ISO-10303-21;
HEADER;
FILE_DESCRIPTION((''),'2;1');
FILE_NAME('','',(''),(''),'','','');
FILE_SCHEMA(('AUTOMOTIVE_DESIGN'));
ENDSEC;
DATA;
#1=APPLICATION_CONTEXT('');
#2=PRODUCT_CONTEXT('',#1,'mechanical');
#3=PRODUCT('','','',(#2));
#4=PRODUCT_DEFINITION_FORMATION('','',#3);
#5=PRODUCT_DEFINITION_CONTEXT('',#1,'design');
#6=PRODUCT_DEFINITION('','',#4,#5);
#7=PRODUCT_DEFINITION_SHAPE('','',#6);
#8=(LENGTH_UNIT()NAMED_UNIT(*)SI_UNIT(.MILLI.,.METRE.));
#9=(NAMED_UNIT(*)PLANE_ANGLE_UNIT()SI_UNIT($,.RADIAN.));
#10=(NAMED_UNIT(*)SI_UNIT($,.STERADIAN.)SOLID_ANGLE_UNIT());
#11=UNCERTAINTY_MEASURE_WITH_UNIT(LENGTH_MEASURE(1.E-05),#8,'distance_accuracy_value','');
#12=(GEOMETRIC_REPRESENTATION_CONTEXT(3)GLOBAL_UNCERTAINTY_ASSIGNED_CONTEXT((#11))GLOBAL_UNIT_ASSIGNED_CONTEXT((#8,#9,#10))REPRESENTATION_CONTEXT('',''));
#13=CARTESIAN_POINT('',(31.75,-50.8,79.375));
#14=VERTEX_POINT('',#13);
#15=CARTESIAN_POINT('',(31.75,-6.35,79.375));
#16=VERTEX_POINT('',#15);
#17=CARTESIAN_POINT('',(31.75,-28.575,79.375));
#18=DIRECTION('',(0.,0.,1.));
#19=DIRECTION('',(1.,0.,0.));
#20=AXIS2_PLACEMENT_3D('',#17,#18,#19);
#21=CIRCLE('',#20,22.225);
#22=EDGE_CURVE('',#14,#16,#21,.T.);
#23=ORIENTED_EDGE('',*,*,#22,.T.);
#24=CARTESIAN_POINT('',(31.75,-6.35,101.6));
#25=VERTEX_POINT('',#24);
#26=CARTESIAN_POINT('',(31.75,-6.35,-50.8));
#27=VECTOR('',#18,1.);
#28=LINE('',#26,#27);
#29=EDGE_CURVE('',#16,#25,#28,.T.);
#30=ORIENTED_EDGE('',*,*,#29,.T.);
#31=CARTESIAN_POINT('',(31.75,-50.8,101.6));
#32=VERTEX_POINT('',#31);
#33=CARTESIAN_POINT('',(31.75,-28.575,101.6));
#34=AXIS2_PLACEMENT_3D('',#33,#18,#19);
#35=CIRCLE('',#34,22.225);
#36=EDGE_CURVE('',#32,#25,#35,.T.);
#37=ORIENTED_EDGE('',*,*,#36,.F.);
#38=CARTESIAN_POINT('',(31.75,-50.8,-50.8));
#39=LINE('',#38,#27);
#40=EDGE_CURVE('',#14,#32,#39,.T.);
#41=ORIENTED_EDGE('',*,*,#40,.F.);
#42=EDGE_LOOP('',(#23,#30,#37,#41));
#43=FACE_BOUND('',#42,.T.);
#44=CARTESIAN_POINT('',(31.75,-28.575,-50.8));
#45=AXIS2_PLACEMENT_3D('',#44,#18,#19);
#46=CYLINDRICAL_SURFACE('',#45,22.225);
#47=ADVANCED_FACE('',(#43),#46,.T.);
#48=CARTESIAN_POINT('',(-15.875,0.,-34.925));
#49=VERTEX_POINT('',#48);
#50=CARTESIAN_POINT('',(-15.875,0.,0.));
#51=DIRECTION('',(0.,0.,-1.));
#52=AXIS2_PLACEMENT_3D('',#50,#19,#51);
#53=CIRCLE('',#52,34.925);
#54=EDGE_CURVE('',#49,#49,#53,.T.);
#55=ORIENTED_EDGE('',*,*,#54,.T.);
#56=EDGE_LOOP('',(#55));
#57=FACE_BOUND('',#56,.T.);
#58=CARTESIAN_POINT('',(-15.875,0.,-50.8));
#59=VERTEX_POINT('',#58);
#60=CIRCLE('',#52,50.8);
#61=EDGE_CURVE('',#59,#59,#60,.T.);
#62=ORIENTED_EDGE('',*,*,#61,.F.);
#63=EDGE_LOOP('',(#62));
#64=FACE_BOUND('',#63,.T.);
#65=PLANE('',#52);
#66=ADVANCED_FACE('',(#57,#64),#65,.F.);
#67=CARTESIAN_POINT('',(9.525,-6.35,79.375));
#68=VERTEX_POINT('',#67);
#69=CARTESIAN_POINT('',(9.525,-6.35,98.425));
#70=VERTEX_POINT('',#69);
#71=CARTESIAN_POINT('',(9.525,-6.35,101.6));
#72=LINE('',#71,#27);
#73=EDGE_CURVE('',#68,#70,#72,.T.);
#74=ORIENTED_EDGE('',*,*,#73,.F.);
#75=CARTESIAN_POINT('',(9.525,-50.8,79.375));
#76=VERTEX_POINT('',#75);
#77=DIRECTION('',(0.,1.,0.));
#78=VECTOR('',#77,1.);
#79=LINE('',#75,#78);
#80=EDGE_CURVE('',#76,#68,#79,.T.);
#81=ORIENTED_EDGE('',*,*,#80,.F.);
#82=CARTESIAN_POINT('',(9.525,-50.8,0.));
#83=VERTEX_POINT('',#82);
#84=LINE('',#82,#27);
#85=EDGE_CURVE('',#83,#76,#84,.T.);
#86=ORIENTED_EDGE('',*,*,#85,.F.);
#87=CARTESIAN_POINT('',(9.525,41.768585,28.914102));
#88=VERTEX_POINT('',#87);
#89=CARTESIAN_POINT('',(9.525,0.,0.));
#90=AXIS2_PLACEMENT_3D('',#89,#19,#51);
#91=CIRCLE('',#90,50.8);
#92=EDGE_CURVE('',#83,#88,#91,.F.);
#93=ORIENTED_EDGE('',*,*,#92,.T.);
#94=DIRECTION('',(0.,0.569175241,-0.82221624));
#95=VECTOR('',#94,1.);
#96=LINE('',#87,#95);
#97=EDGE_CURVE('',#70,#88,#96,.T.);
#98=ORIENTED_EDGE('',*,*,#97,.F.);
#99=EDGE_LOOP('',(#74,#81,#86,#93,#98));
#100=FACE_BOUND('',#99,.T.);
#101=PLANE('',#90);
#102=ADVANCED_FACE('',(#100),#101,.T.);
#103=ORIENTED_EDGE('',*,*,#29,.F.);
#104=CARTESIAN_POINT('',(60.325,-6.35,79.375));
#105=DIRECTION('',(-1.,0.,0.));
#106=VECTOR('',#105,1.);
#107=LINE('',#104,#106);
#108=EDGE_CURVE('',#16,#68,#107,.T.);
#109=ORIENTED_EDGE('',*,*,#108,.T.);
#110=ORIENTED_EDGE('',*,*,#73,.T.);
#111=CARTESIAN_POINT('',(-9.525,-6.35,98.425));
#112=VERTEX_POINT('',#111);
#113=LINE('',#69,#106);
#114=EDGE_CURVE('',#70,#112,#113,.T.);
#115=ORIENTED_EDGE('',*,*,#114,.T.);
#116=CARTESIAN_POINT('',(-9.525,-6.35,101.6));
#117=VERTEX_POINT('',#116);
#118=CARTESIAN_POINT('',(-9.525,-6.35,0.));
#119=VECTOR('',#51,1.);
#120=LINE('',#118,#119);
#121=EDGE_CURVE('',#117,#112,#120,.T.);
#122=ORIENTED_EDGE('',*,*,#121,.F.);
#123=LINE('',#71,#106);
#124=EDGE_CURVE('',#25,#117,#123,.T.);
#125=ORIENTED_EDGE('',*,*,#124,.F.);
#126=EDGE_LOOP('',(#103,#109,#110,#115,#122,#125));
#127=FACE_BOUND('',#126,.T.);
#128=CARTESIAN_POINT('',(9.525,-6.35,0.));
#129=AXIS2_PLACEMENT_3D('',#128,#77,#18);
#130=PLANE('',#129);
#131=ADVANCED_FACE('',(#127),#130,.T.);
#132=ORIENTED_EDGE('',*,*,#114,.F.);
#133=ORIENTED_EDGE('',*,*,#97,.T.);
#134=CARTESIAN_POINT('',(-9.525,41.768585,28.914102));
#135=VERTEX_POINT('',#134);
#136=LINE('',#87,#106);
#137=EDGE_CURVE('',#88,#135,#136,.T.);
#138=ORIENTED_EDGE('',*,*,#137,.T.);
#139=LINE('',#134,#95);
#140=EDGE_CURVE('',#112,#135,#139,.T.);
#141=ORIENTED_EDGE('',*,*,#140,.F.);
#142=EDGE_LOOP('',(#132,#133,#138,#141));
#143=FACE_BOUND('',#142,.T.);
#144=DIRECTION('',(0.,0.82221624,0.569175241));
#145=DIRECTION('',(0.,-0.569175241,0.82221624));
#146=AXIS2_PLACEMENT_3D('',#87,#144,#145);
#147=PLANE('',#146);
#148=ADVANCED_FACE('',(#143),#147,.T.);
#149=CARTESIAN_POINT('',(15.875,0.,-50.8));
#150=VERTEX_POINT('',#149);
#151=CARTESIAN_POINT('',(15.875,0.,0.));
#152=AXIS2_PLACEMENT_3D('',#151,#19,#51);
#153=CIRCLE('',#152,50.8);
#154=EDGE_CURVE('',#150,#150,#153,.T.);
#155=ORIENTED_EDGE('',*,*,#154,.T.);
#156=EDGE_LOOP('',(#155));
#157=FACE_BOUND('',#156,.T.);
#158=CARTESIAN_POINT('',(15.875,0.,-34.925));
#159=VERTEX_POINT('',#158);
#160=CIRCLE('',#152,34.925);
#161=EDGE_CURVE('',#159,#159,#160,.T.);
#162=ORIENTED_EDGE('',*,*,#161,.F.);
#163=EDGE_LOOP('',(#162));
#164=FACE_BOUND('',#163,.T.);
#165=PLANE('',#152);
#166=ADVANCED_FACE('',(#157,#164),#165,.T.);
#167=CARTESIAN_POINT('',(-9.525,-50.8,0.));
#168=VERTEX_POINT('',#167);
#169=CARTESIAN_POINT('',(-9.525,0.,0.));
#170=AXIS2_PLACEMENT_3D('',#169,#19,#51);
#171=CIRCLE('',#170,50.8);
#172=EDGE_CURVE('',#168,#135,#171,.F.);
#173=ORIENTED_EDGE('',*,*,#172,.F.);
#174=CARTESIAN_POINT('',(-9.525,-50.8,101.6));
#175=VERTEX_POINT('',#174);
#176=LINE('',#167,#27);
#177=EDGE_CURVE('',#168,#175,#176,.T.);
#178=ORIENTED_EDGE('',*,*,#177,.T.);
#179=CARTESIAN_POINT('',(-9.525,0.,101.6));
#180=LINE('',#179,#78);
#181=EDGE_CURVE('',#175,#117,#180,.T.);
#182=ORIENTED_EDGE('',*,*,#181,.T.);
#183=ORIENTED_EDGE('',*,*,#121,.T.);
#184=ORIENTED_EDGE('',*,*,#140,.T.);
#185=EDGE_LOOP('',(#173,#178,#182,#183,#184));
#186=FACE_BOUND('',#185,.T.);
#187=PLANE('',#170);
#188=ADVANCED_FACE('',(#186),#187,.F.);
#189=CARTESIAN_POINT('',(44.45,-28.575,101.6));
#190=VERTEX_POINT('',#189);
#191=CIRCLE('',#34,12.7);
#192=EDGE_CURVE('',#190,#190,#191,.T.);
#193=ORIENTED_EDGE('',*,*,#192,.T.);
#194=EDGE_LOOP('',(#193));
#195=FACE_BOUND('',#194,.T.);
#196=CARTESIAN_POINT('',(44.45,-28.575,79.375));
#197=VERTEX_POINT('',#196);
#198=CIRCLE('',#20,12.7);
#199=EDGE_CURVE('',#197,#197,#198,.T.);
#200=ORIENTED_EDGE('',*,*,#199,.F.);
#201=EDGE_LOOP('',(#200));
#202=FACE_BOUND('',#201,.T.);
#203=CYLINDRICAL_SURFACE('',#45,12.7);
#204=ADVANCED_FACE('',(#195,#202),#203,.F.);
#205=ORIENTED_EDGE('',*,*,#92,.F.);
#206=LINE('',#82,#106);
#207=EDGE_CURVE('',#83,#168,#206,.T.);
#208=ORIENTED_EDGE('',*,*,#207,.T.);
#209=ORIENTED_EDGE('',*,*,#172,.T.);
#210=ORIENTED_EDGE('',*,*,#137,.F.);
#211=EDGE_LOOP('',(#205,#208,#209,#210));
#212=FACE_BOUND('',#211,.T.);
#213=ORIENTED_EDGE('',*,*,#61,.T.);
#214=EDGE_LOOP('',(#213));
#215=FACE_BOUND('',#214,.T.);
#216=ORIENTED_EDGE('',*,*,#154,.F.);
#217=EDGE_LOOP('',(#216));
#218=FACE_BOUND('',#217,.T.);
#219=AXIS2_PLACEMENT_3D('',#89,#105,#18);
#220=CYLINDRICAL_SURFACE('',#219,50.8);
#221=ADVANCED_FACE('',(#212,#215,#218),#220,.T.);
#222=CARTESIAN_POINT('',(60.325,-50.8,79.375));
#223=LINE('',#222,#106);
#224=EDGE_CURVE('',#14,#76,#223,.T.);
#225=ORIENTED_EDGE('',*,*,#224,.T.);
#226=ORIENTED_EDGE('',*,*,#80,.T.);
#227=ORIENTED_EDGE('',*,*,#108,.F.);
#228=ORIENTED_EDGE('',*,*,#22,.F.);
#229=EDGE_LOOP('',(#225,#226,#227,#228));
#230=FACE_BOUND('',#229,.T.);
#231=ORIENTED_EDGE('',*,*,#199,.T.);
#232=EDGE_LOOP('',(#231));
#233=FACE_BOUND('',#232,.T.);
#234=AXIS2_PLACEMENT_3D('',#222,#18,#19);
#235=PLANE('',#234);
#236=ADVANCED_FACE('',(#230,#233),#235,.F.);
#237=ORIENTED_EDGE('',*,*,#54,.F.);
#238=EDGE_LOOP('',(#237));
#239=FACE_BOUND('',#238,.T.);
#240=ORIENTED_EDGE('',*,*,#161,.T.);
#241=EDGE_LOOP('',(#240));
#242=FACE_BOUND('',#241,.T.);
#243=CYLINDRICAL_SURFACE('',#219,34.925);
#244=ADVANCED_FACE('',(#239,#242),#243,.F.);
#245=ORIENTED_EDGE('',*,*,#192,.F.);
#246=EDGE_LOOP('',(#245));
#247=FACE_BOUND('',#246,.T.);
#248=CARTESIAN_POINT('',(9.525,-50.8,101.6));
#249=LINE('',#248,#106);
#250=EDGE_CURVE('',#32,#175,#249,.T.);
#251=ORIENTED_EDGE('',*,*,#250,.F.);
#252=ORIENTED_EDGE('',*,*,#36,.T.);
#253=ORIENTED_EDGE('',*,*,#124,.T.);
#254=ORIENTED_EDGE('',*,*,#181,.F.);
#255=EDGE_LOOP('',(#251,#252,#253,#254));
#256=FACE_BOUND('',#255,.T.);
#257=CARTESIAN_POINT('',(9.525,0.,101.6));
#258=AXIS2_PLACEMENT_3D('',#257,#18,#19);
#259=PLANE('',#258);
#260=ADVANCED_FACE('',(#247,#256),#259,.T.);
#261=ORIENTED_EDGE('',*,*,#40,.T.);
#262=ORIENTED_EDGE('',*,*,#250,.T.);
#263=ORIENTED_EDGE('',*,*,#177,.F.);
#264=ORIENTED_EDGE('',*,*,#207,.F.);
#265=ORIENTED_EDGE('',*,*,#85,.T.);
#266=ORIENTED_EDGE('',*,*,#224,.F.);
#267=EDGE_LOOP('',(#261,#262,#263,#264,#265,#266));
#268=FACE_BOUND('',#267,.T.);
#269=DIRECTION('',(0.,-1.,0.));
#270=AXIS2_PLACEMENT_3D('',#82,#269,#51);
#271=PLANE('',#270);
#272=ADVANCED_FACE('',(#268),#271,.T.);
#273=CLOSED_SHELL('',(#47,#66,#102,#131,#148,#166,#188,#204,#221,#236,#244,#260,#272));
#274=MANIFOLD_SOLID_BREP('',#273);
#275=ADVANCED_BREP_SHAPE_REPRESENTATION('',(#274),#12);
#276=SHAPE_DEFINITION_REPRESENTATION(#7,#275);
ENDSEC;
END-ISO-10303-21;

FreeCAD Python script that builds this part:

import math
import FreeCAD as App
import Part
import Sketcher
Q = App.Units.Quantity

doc = App.newDocument("Part")
params = doc.addObject("Spreadsheet::Sheet", "Params")
for row, (alias, value) in enumerate([
    ("sketch1_radius", "2 in"),
    ("sketch1_diameter", "2.75 in"),
    ("sketch1_height", "4 in"),
    ("sketch1_width", "1.75 in"),
    ("sketch1_height2", "0.125 in"),
    ("pad1_length", "0.75 in"),
    ("sketch2_diameter", "4 in"),
    ("sketch2_diameter2", "2.75 in"),
    ("pad2_length", "1.25 in"),
    ("sketch3_width", "1.75 in"),
    ("sketch3_height", "0.875 in"),
    ("pad3_length", "2 in"),
    ("sketch4_diameter", "1 in"),
    ("sketch4_radius", "0.875 in"),
    ("sketch4_width", "1.125 in"),
], start=1):
    params.set(f"A{row}", alias)
    params.set(f"B{row}", "=" + value)
    params.setAlias(f"B{row}", alias)

body = doc.addObject("PartDesign::Body", "Body")

sketch1 = body.newObject("Sketcher::SketchObject", "Sketch")
sketch1.AttachmentSupport = (doc.getObject("YZ_Plane"), [""])
sketch1.MapMode = "FlatFace"
sketch1.addGeometry([
    Part.LineSegment(App.Vector(41.8, 28.9, 0), App.Vector(-6.3, 98.4, 0)),
    Part.LineSegment(App.Vector(-6.3, 98.4, 0), App.Vector(-6.3, 101.6, 0)),
    Part.LineSegment(App.Vector(-6.3, 101.6, 0), App.Vector(-50.8, 101.6, 0)),
    Part.LineSegment(App.Vector(-50.8, 101.6, 0), App.Vector(-50.8, 0, 0)),
    Part.ArcOfCircle(Part.Circle(App.Vector(0, 0, 0), App.Vector(0, 0, 1), 50.8), math.radians(180), math.radians(395)),
    Part.Circle(App.Vector(0, 0, 0), App.Vector(0, 0, 1), 34.9),
], False)
sketch1.addConstraint([
    Sketcher.Constraint("Coincident", 0, 2, 1, 1),
    Sketcher.Constraint("Coincident", 1, 2, 2, 1),
    Sketcher.Constraint("Coincident", 2, 2, 3, 1),
    Sketcher.Constraint("Tangent", 3, 2, 4, 1),
    Sketcher.Constraint("Tangent", 4, 2, 0, 1),
    Sketcher.Constraint("Vertical", 1),
    Sketcher.Constraint("Horizontal", 2),
    Sketcher.Constraint("Vertical", 3),
    Sketcher.Constraint("Coincident", 4, 3, -1, 1),
    Sketcher.Constraint("Coincident", 5, 3, -1, 1),
    Sketcher.Constraint("Radius", 4, Q("2 in")),
    Sketcher.Constraint("Diameter", 5, Q("2.75 in")),
    Sketcher.Constraint("DistanceY", 3, 2, 3, 1, Q("4 in")),
    Sketcher.Constraint("DistanceX", 2, 2, 2, 1, Q("1.75 in")),
    Sketcher.Constraint("DistanceY", 1, 1, 1, 2, Q("0.125 in")),
])
sketch1.setExpression("Constraints[10]", "Params.sketch1_radius")
sketch1.setExpression("Constraints[11]", "Params.sketch1_diameter")
sketch1.setExpression("Constraints[12]", "Params.sketch1_height")
sketch1.setExpression("Constraints[13]", "Params.sketch1_width")
sketch1.setExpression("Constraints[14]", "Params.sketch1_height2")
pad1 = body.newObject("PartDesign::Pad", "Pad")
pad1.Profile = sketch1
pad1.setExpression("Length", "Params.pad1_length")
pad1.Midplane = True

sketch2 = body.newObject("Sketcher::SketchObject", "Sketch001")
sketch2.AttachmentSupport = (doc.getObject("YZ_Plane"), [""])
sketch2.MapMode = "FlatFace"
sketch2.addGeometry([
    Part.Circle(App.Vector(0, 0, 0), App.Vector(0, 0, 1), 51),
    Part.Circle(App.Vector(0, 0, 0), App.Vector(0, 0, 1), 35),
], False)
sketch2.addConstraint([
    Sketcher.Constraint("Coincident", 0, 3, -1, 1),
    Sketcher.Constraint("Coincident", 1, 3, -1, 1),
    Sketcher.Constraint("Diameter", 0, Q("4 in")),
    Sketcher.Constraint("Diameter", 1, Q("2.75 in")),
])
sketch2.setExpression("Constraints[2]", "Params.sketch2_diameter")
sketch2.setExpression("Constraints[3]", "Params.sketch2_diameter2")
pad2 = body.newObject("PartDesign::Pad", "Pad001")
pad2.Profile = sketch2
pad2.setExpression("Length", "Params.pad2_length")
pad2.Midplane = True

sketch3 = body.newObject("Sketcher::SketchObject", "Sketch002")
sketch3.AttachmentSupport = (doc.getObject("YZ_Plane"), [""])
sketch3.MapMode = "FlatFace"
sketch3.AttachmentOffset = App.Placement(App.Vector(0, 0, 0.375 * 25.4), App.Rotation())
sketch3.addGeometry([
    Part.LineSegment(App.Vector(-6, 102, 0), App.Vector(-51, 102, 0)),
    Part.LineSegment(App.Vector(-51, 102, 0), App.Vector(-51, 79, 0)),
    Part.LineSegment(App.Vector(-51, 79, 0), App.Vector(-6, 79, 0)),
    Part.LineSegment(App.Vector(-6, 79, 0), App.Vector(-6, 102, 0)),
], False)
sketch3.addConstraint([
    Sketcher.Constraint("Coincident", 0, 2, 1, 1),
    Sketcher.Constraint("Coincident", 1, 2, 2, 1),
    Sketcher.Constraint("Coincident", 2, 2, 3, 1),
    Sketcher.Constraint("Coincident", 3, 2, 0, 1),
    Sketcher.Constraint("Horizontal", 0),
    Sketcher.Constraint("Vertical", 1),
    Sketcher.Constraint("Horizontal", 2),
    Sketcher.Constraint("Vertical", 3),
    Sketcher.Constraint("DistanceX", 0, 2, -1, 1, Q("2 in")),
    Sketcher.Constraint("DistanceY", -1, 1, 0, 2, Q("4 in")),
    Sketcher.Constraint("DistanceX", 0, 2, 0, 1, Q("1.75 in")),
    Sketcher.Constraint("DistanceY", 1, 2, 1, 1, Q("0.875 in")),
])
sketch3.setExpression("Constraints[10]", "Params.sketch3_width")
sketch3.setExpression("Constraints[11]", "Params.sketch3_height")
pad3 = body.newObject("PartDesign::Pad", "Pad002")
pad3.Profile = sketch3
pad3.setExpression("Length", "Params.pad3_length")

sketch4 = body.newObject("Sketcher::SketchObject", "Sketch003")
sketch4.AttachmentSupport = (doc.getObject("XY_Plane"), [""])
sketch4.MapMode = "FlatFace"
sketch4.AttachmentOffset = App.Placement(App.Vector(0, 0, 4 * 25.4), App.Rotation())
sketch4.addGeometry([
    Part.LineSegment(App.Vector(60, -6, 0), App.Vector(32, -6, 0)),
    Part.ArcOfCircle(Part.Circle(App.Vector(32, -29, 0), App.Vector(0, 0, 1), 22), math.radians(-90), math.radians(90)),
    Part.LineSegment(App.Vector(32, -51, 0), App.Vector(60, -51, 0)),
    Part.LineSegment(App.Vector(60, -51, 0), App.Vector(60, -6, 0)),
    Part.Circle(App.Vector(32, -29, 0), App.Vector(0, 0, 1), 13),
], False)
sketch4.addConstraint([
    Sketcher.Constraint("Tangent", 0, 2, 1, 2),
    Sketcher.Constraint("Tangent", 1, 1, 2, 1),
    Sketcher.Constraint("Coincident", 2, 2, 3, 1),
    Sketcher.Constraint("Coincident", 3, 2, 0, 1),
    Sketcher.Constraint("Horizontal", 0),
    Sketcher.Constraint("Horizontal", 2),
    Sketcher.Constraint("Vertical", 3),
    Sketcher.Constraint("Coincident", 4, 3, 1, 3),
    Sketcher.Constraint("Diameter", 4, Q("1 in")),
    Sketcher.Constraint("DistanceY", 1, 1, -1, 1, Q("2 in")),
    Sketcher.Constraint("Radius", 1, Q("0.875 in")),
    Sketcher.Constraint("DistanceX", 0, 2, 0, 1, Q("1.125 in")),
    Sketcher.Constraint("DistanceX", -1, 1, 1, 3, Q("1.25 in")),
])
sketch4.setExpression("Constraints[8]", "Params.sketch4_diameter")
sketch4.setExpression("Constraints[10]", "Params.sketch4_radius")
sketch4.setExpression("Constraints[11]", "Params.sketch4_width")
pocket1 = body.newObject("PartDesign::Pocket", "Pocket")
pocket1.Profile = sketch4
pocket1.Type = "ThroughAll"

doc.recompute()
